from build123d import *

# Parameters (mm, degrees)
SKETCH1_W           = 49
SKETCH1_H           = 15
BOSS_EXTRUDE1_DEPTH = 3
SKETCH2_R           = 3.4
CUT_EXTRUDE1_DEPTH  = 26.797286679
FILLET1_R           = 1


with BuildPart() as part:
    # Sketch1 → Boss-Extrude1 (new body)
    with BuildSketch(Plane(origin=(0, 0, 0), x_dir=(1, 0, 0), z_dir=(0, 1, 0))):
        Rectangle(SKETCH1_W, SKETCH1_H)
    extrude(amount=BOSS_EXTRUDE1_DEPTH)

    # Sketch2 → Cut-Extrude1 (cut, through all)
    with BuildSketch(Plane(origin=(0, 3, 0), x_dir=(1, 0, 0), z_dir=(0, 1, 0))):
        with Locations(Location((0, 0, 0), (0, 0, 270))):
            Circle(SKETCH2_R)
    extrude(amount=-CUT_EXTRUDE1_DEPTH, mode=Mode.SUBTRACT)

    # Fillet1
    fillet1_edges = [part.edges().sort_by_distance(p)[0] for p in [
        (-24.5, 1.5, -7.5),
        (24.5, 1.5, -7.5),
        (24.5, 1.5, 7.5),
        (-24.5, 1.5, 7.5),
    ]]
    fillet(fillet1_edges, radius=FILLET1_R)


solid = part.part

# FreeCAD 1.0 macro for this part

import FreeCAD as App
import Part
import Sketcher


def edges_at(feature, points):
    """Names of the edges that pass closest to the given points."""
    edges = feature.Shape.Edges
    near = lambda p: min(range(len(edges)), key=lambda i: edges[i].distToShape(Part.Vertex(*p))[0])
    return sorted({f"Edge{near(p) + 1}" for p in points})

doc = App.newDocument("Part")
body = doc.addObject("PartDesign::Body", "Body")

# Sketch on XZ plane
sketch1 = body.newObject("Sketcher::SketchObject", "Sketch")
sketch1.AttachmentSupport = (doc.getObject("XZ_Plane"), [""])
sketch1.MapMode = "FlatFace"
sketch1.addGeometry([
    Part.LineSegment(App.Vector(-24, -8, 0), App.Vector(-24, 8, 0)),
    Part.LineSegment(App.Vector(-24, 8, 0), App.Vector(24, 8, 0)),
    Part.LineSegment(App.Vector(24, 8, 0), App.Vector(24, -8, 0)),
    Part.LineSegment(App.Vector(24, -8, 0), App.Vector(-24, -8, 0)),
], False)
sketch1.addConstraint([
    Sketcher.Constraint("Coincident", 0, 2, 1, 1),
    Sketcher.Constraint("Coincident", 1, 2, 2, 1),
    Sketcher.Constraint("Coincident", 2, 2, 3, 1),
    Sketcher.Constraint("Coincident", 3, 2, 0, 1),
    Sketcher.Constraint("Vertical", 0),
    Sketcher.Constraint("Horizontal", 1),
    Sketcher.Constraint("Vertical", 2),
    Sketcher.Constraint("Horizontal", 3),
    Sketcher.Constraint("Symmetric", 0, 2, 2, 2, -1, 1),
    Sketcher.Constraint("DistanceX", 1, 1, 1, 2, 49.0),
    Sketcher.Constraint("DistanceY", 0, 1, 0, 2, 15.0),
])
pad1 = body.newObject("PartDesign::Pad", "Pad")
pad1.Profile = sketch1
pad1.Length = 3
pad1.Reversed = True

# Sketch on XZ plane
sketch2 = body.newObject("Sketcher::SketchObject", "Sketch001")
sketch2.AttachmentSupport = (doc.getObject("XZ_Plane"), [""])
sketch2.MapMode = "FlatFace"
sketch2.AttachmentOffset = App.Placement(App.Vector(0, 0, -3), App.Rotation())
sketch2.addGeometry(Part.Circle(App.Vector(0, 0, 0), App.Vector(0, 0, 1), 3.4), False)
sketch2.addConstraint([
    Sketcher.Constraint("Coincident", 0, 3, -1, 1),
    Sketcher.Constraint("Diameter", 0, 6.8),
])
pocket1 = body.newObject("PartDesign::Pocket", "Pocket")
pocket1.Profile = sketch2
pocket1.Type = "ThroughAll"
pocket1.Reversed = True
doc.recompute()

fillet = body.newObject("PartDesign::Fillet", "Fillet")
fillet.Base = (pocket1, edges_at(pocket1, [
    (-24.5, 1.5, -7.5),
    (24.5, 1.5, -7.5),
    (24.5, 1.5, 7.5),
    (-24.5, 1.5, 7.5),
]))
fillet.Radius = 1

doc.recompute()
